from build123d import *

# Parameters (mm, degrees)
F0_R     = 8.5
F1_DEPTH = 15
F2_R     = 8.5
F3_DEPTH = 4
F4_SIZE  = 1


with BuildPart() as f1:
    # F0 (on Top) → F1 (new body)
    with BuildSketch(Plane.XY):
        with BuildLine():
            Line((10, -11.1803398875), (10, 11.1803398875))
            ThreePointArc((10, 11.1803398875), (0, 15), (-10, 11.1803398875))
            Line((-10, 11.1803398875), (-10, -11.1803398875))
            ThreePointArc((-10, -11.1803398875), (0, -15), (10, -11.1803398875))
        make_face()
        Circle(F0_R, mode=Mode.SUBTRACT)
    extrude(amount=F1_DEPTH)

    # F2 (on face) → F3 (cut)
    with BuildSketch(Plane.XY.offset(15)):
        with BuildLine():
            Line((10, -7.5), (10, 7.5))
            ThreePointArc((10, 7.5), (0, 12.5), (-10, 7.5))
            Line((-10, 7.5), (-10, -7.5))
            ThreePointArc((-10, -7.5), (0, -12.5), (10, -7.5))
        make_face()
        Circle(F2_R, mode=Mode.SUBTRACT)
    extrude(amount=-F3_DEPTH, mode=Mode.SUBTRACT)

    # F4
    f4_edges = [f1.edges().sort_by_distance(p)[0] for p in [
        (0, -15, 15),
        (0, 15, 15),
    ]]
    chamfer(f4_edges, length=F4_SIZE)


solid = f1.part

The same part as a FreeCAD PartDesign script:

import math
import FreeCAD as App
import Part
import Sketcher
from FreeCAD import Vector
Q = App.Units.Quantity


def edges_at(feature, points):
    """Names of the edges that pass closest to the given points."""
    edges = feature.Shape.Edges
    near = lambda p: min(range(len(edges)), key=lambda i: edges[i].distToShape(Part.Vertex(*p))[0])
    return sorted({f"Edge{near(p) + 1}" for p in points})

doc = App.newDocument("Part")
body = doc.addObject("PartDesign::Body", "Body")

# Sketch on XY plane
sketch1 = doc.addObject("Sketcher::SketchObject", "Sketch")
body.addObject(sketch1)
sketch1.AttachmentSupport = (doc.XY_Plane, [""])
sketch1.MapMode = "FlatFace"
sketch1.addGeometry([
    Part.LineSegment(Vector(10, -11.18034, 0), Vector(10, 11.18034, 0)),  # 0
    Part.ArcOfCircle(Part.Circle(Vector(0, 0, 0), Vector(0, 0, 1), 15), math.radians(48.189685), math.radians(131.810315)),  # 1
    Part.LineSegment(Vector(-10, 11.18034, 0), Vector(-10, -11.18034, 0)),  # 2
    Part.ArcOfCircle(Part.Circle(Vector(0, 0, 0), Vector(0, 0, 1), 15), math.radians(-131.810315), math.radians(-48.189685)),  # 3
    Part.Circle(Vector(0, 0, 0), Vector(0, 0, 1), 8.5),  # 4
], False)
sketch1.addConstraint([
    Sketcher.Constraint("Coincident", 0, 2, 1, 1),
    Sketcher.Constraint("Coincident", 1, 2, 2, 1),
    Sketcher.Constraint("Coincident", 2, 2, 3, 1),
    Sketcher.Constraint("Coincident", 3, 2, 0, 1),
    Sketcher.Constraint("Vertical", 0),
    Sketcher.Constraint("Vertical", 2),
    Sketcher.Constraint("Coincident", 1, 3, -1, 1),
    Sketcher.Constraint("Coincident", 3, 3, -1, 1),
    Sketcher.Constraint("Coincident", 4, 3, -1, 1),
    Sketcher.Constraint("Equal", 1, 3),
    Sketcher.Constraint("Horizontal", 0, 2, 1, 2),
    Sketcher.Constraint("Diameter", 4, Q("17 mm")),
    Sketcher.Constraint("Radius", 1, Q("15 mm")),
    Sketcher.Constraint("DistanceX", -1, 1, 0, 2, Q("10 mm")),
])
pad1 = doc.addObject("PartDesign::Pad", "Pad")
body.addObject(pad1)
pad1.Profile = sketch1
pad1.Length = 15

# Sketch on XY plane
sketch2 = doc.addObject("Sketcher::SketchObject", "Sketch001")
body.addObject(sketch2)
sketch2.AttachmentSupport = (doc.XY_Plane, [""])
sketch2.MapMode = "FlatFace"
sketch2.AttachmentOffset = App.Placement(Vector(0, 0, 15), App.Rotation())
sketch2.addGeometry([
    Part.LineSegment(Vector(10, -7.5, 0), Vector(10, 7.5, 0)),  # 0
    Part.ArcOfCircle(Part.Circle(Vector(0, 0, 0), Vector(0, 0, 1), 12.5), math.radians(36.869898), math.radians(143.130102)),  # 1
    Part.LineSegment(Vector(-10, 7.5, 0), Vector(-10, -7.5, 0)),  # 2
    Part.ArcOfCircle(Part.Circle(Vector(0, 0, 0), Vector(0, 0, 1), 12.5), math.radians(-143.130102), math.radians(-36.869898)),  # 3
    Part.Circle(Vector(0, 0, 0), Vector(0, 0, 1), 8.5),  # 4
], False)
sketch2.addConstraint([
    Sketcher.Constraint("Coincident", 0, 2, 1, 1),
    Sketcher.Constraint("Coincident", 1, 2, 2, 1),
    Sketcher.Constraint("Coincident", 2, 2, 3, 1),
    Sketcher.Constraint("Coincident", 3, 2, 0, 1),
    Sketcher.Constraint("Vertical", 0),
    Sketcher.Constraint("Vertical", 2),
    Sketcher.Constraint("Coincident", 1, 3, -1, 1),
    Sketcher.Constraint("Coincident", 3, 3, -1, 1),
    Sketcher.Constraint("Coincident", 4, 3, -1, 1),
    Sketcher.Constraint("Equal", 1, 3),
    Sketcher.Constraint("Horizontal", 0, 2, 1, 2),
    Sketcher.Constraint("Diameter", 4, Q("17 mm")),
    Sketcher.Constraint("Radius", 1, Q("12.5 mm")),
    Sketcher.Constraint("DistanceY", 0, 1, 0, 2, Q("15 mm")),
])
pocket1 = doc.addObject("PartDesign::Pocket", "Pocket")
body.addObject(pocket1)
pocket1.Profile = sketch2
pocket1.Length = 4
doc.recompute()

chamfer = doc.addObject("PartDesign::Chamfer", "Chamfer")
body.addObject(chamfer)
chamfer.Base = (pocket1, edges_at(pocket1, [(0, -15, 15), (0, 15, 15)]))
chamfer.Size = 1

doc.recompute()
